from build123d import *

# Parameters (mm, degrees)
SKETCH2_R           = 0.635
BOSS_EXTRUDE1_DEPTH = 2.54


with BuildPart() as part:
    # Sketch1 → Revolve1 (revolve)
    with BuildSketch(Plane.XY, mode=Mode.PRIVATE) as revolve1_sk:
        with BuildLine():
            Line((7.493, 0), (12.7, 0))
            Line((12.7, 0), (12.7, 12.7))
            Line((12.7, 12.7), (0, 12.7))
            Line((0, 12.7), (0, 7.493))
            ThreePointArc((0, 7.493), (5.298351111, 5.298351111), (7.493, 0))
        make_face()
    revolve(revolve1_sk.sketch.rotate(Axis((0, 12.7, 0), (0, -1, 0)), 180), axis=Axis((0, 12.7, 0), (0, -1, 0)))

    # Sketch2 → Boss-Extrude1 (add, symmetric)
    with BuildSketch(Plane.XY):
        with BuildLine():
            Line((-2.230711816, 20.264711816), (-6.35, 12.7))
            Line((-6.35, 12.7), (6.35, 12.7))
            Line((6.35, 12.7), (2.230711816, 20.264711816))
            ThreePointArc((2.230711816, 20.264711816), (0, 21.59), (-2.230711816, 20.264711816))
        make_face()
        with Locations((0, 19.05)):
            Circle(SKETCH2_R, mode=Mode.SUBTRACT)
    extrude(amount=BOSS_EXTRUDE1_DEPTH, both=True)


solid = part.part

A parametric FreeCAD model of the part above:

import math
import FreeCAD as App
import Part
import Sketcher
Q = App.Units.Quantity

doc = App.newDocument("Part")
body = doc.addObject("PartDesign::Body", "Body")

# Sketch on XY plane
sketch1 = body.newObject("Sketcher::SketchObject", "Sketch")
sketch1.AttachmentSupport = (doc.getObject("XY_Plane"), [""])
sketch1.MapMode = "FlatFace"
sketch1.addGeometry([
    Part.LineSegment(App.Vector(7, 0, 0), App.Vector(13, 0, 0)),  # 0
    Part.LineSegment(App.Vector(13, 0, 0), App.Vector(13, 13, 0)),  # 1
    Part.LineSegment(App.Vector(13, 13, 0), App.Vector(0, 13, 0)),  # 2
    Part.LineSegment(App.Vector(0, 13, 0), App.Vector(0, 7, 0)),  # 3
    Part.ArcOfCircle(Part.Circle(App.Vector(0, 0, 0), App.Vector(0, 0, 1), 7), math.radians(0), math.radians(90)),  # 4
], False)
sketch1.addConstraint([
    Sketcher.Constraint("Coincident", 0, 2, 1, 1),
    Sketcher.Constraint("Coincident", 1, 2, 2, 1),
    Sketcher.Constraint("Coincident", 2, 2, 3, 1),
    Sketcher.Constraint("Coincident", 3, 2, 4, 2),
    Sketcher.Constraint("Coincident", 4, 1, 0, 1),
    Sketcher.Constraint("Horizontal", 0),
    Sketcher.Constraint("Vertical", 1),
    Sketcher.Constraint("Horizontal", 2),
    Sketcher.Constraint("Vertical", 3),
    Sketcher.Constraint("Coincident", 4, 3, -1, 1),
    Sketcher.Constraint("PointOnObject", 0, 2, -1),
    Sketcher.Constraint("PointOnObject", 2, 2, -2),
    Sketcher.Constraint("Equal", 2, 1),
    Sketcher.Constraint("DistanceX", 2, 2, 2, 1, Q("0.5 in")),
    Sketcher.Constraint("Radius", 4, Q("0.295 in")),
])
revolution = body.newObject("PartDesign::Revolution", "Revolution")
revolution.Profile = sketch1
revolution.ReferenceAxis = (sketch1, ["V_Axis"])
revolution.Angle = 360

# Sketch on XY plane
sketch2 = body.newObject("Sketcher::SketchObject", "Sketch001")
sketch2.AttachmentSupport = (doc.getObject("XY_Plane"), [""])
sketch2.MapMode = "FlatFace"
sketch2.addGeometry([
    Part.LineSegment(App.Vector(-2.2, 20.3, 0), App.Vector(-6.3, 12.7, 0)),  # 0
    Part.LineSegment(App.Vector(-6.3, 12.7, 0), App.Vector(6.3, 12.7, 0)),  # 1
    Part.LineSegment(App.Vector(6.3, 12.7, 0), App.Vector(2.2, 20.3, 0)),  # 2
    Part.ArcOfCircle(Part.Circle(App.Vector(0, 19, 0), App.Vector(0, 0, 1), 2.5), math.radians(29), math.radians(151)),  # 3
    Part.Circle(App.Vector(0, 19.1, 0), App.Vector(0, 0, 1), 0.6),  # 4
], False)
sketch2.addConstraint([
    Sketcher.Constraint("Coincident", 0, 2, 1, 1),
    Sketcher.Constraint("Coincident", 1, 2, 2, 1),
    Sketcher.Constraint("Tangent", 2, 2, 3, 1),
    Sketcher.Constraint("Tangent", 3, 2, 0, 1),
    Sketcher.Constraint("Horizontal", 1),
    Sketcher.Constraint("Coincident", 4, 3, 3, 3),
    Sketcher.Constraint("Symmetric", 2, 2, 3, 2, -2),
    Sketcher.Constraint("Radius", 3, Q("0.1 in")),
    Sketcher.Constraint("Diameter", 4, Q("0.05 in")),
    Sketcher.Constraint("DistanceX", 1, 1, 1, 2, Q("0.5 in")),
    Sketcher.Constraint("DistanceY", -1, 1, 0, 2, Q("0.5 in")),
    Sketcher.Constraint("DistanceY", -1, 1, 3, 3, Q("0.75 in")),
])
pad1 = body.newObject("PartDesign::Pad", "Pad")
pad1.Profile = sketch2
pad1.Length = Q("0.2 in")
pad1.Midplane = True

doc.recompute()
